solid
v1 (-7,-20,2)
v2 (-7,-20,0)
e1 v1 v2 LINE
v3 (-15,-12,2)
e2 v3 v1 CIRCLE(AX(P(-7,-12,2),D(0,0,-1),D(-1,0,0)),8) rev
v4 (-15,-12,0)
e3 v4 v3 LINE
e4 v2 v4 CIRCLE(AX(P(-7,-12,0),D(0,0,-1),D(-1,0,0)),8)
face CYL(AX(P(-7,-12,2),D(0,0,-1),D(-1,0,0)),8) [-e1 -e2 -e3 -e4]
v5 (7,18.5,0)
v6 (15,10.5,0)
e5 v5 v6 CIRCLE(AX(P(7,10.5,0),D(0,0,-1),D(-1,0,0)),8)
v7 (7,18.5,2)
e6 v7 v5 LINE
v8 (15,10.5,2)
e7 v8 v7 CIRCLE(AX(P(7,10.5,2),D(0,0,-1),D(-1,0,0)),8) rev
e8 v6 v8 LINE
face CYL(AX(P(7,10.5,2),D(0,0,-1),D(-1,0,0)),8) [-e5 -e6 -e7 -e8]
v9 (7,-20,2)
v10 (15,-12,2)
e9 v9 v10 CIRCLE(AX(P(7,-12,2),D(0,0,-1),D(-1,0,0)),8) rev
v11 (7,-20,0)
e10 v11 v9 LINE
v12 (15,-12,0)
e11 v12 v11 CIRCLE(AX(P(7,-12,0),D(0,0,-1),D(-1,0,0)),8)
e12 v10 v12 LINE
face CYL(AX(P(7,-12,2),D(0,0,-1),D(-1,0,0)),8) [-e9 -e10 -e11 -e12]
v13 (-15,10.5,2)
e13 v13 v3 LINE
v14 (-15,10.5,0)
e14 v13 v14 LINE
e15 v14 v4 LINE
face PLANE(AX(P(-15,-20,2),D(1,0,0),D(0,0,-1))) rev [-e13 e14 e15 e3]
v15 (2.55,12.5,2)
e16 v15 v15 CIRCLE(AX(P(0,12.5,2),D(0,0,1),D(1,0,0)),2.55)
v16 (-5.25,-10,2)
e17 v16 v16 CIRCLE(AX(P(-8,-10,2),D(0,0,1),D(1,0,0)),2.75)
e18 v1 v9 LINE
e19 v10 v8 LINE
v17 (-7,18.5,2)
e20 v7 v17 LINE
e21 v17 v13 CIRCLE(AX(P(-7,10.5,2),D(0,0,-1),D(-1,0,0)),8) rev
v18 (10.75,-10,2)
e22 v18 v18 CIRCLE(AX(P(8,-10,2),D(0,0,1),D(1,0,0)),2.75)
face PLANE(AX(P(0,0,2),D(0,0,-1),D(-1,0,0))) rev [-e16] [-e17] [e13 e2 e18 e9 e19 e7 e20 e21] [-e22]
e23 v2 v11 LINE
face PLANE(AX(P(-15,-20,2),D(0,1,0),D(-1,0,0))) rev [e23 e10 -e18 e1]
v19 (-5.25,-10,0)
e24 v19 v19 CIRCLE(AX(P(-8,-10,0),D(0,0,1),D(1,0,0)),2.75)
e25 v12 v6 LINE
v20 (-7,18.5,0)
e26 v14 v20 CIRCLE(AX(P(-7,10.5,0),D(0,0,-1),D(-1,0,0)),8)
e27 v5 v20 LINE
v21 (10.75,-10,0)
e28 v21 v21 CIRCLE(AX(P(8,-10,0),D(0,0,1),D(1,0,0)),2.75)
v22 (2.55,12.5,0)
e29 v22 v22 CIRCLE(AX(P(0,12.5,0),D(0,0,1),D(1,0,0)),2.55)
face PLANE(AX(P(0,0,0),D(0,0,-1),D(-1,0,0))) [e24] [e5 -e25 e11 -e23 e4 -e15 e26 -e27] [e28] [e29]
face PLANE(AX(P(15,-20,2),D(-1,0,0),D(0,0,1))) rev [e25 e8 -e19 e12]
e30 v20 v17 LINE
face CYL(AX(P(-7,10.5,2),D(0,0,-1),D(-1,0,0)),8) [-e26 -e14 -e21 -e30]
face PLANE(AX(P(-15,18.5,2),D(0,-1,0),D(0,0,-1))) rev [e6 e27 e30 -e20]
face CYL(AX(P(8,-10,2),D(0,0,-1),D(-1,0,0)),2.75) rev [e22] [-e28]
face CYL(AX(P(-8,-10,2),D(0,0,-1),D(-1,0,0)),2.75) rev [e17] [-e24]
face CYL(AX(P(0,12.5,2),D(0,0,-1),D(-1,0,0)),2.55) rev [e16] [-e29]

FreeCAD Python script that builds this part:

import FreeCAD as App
import Part
import Sketcher

V = App.Vector


def edges_at(feature, points):
    """Names of the edges that pass closest to the given points."""
    edges = feature.Shape.Edges
    near = lambda p: min(range(len(edges)), key=lambda i: edges[i].distToShape(Part.Vertex(*p))[0])
    return sorted({f"Edge{near(p) + 1}" for p in points})

doc = App.newDocument("Part")
body = doc.addObject("PartDesign::Body", "Body")

# Sketch on XY plane
sketch1 = doc.addObject("Sketcher::SketchObject", "Sketch")
body.addObject(sketch1)
sketch1.AttachmentSupport = (doc.XY_Plane, [""])
sketch1.MapMode = "FlatFace"
sketch1.addGeometry([
    Part.LineSegment(V(-15, 18.5, 0), V(-15, -20, 0)),  # 0
    Part.LineSegment(V(-15, -20, 0), V(15, -20, 0)),  # 1
    Part.LineSegment(V(15, -20, 0), V(15, 18.5, 0)),  # 2
    Part.LineSegment(V(15, 18.5, 0), V(-15, 18.5, 0)),  # 3
    Part.Circle(V(-8, -10, 0), V(0, 0, 1), 2.8),  # 4
    Part.Circle(V(8, -10, 0), V(0, 0, 1), 2.8),  # 5
    Part.Circle(V(0, 12.5, 0), V(0, 0, 1), 2.5),  # 6
], False)
sketch1.addConstraint([
    Sketcher.Constraint("Coincident", 0, 2, 1, 1),
    Sketcher.Constraint("Coincident", 1, 2, 2, 1),
    Sketcher.Constraint("Coincident", 2, 2, 3, 1),
    Sketcher.Constraint("Coincident", 3, 2, 0, 1),
    Sketcher.Constraint("Vertical", 0),
    Sketcher.Constraint("Horizontal", 1),
    Sketcher.Constraint("Vertical", 2),
    Sketcher.Constraint("Horizontal", 3),
    Sketcher.Constraint("Equal", 4, 5),
    Sketcher.Constraint("Symmetric", 4, 3, 5, 3, -2),
    Sketcher.Constraint("PointOnObject", 6, 3, -2),
    Sketcher.Constraint("Diameter", 4, 5.5),
    Sketcher.Constraint("Diameter", 6, 5.1),
    Sketcher.Constraint("DistanceX", 1, 1, 1, 2, 30.0),
    Sketcher.Constraint("DistanceY", 0, 2, 0, 1, 38.5),
    Sketcher.Constraint("DistanceX", 4, 3, -1, 1, 8.0),
    Sketcher.Constraint("DistanceY", 4, 3, -1, 1, 10.0),
    Sketcher.Constraint("DistanceX", 0, 2, -1, 1, 15.0),
    Sketcher.Constraint("DistanceY", 0, 2, -1, 1, 20.0),
    Sketcher.Constraint("DistanceY", 6, 3, 2, 2, 6.0),
])
pad1 = doc.addObject("PartDesign::Pad", "Pad")
body.addObject(pad1)
pad1.Profile = sketch1
pad1.Length = 2
doc.recompute()

fillet = doc.addObject("PartDesign::Fillet", "Fillet")
body.addObject(fillet)
fillet.Base = (pad1, edges_at(pad1, [
    (15, -20, 1),
    (-15, -20, 1),
    (-15, 18.5, 1),
    (15, 18.5, 1),
]))
fillet.Radius = 8

doc.recompute()
